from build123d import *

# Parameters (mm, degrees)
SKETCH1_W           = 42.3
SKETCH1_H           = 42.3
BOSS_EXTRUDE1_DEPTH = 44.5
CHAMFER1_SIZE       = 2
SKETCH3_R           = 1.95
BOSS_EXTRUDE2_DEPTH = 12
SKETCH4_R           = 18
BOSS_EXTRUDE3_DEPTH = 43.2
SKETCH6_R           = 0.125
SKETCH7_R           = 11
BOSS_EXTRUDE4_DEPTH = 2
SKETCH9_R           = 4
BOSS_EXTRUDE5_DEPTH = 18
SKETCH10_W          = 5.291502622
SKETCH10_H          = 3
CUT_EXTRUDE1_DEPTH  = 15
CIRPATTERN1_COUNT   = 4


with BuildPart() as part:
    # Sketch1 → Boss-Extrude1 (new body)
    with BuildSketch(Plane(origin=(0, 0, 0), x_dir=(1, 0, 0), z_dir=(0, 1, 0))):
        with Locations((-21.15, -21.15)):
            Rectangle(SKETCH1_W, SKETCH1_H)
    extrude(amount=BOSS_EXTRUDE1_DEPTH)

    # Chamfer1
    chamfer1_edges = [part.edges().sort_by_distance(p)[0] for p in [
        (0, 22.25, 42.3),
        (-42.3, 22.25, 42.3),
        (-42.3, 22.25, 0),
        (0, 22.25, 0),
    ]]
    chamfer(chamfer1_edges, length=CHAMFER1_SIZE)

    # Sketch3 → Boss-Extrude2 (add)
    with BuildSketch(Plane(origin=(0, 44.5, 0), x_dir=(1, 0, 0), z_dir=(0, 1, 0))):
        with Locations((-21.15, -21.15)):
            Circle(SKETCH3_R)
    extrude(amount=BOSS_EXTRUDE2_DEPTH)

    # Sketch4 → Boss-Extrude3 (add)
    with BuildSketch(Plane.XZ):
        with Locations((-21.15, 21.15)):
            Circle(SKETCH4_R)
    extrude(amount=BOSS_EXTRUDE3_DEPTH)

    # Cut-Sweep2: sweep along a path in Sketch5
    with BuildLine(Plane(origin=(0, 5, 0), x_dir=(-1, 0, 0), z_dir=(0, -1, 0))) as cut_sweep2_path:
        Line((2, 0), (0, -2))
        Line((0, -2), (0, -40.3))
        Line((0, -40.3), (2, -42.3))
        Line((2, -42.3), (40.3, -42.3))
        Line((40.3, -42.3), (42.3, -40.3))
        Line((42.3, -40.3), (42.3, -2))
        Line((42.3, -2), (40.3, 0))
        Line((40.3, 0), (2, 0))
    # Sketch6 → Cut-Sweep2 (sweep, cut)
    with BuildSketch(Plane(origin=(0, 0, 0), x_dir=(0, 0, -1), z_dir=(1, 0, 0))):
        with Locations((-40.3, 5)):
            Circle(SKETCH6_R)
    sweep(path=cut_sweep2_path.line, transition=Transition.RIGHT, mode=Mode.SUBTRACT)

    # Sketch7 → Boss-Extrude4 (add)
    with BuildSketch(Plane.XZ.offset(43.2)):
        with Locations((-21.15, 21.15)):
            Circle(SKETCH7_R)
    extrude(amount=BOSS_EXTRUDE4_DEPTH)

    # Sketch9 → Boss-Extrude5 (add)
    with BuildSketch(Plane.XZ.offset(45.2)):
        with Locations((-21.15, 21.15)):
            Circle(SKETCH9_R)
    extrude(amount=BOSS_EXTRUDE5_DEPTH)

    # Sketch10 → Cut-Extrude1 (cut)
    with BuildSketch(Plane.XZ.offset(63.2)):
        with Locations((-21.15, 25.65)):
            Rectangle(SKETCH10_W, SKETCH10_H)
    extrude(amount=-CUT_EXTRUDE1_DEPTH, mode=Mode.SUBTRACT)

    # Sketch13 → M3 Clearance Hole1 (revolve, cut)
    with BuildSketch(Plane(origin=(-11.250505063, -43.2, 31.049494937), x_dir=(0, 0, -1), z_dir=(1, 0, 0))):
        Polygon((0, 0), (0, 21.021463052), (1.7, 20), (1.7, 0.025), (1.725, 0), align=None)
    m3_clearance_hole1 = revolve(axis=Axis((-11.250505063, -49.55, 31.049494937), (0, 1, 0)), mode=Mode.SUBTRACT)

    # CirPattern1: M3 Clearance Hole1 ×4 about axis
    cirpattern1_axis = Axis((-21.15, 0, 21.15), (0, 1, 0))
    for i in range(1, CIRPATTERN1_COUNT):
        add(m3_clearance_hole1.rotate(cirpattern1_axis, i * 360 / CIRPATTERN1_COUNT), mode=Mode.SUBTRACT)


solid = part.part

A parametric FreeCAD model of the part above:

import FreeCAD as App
import Part
import Sketcher
from FreeCAD import Vector
Q = App.Units.Quantity


def edges_at(feature, points):
    """Names of the edges that pass closest to the given points."""
    edges = feature.Shape.Edges
    near = lambda p: min(range(len(edges)), key=lambda i: edges[i].distToShape(Part.Vertex(*p))[0])
    return sorted({f"Edge{near(p) + 1}" for p in points})


def add_polygon(sketch, points):
    """Adds a closed chain of lines whose ends are joined by coincident constraints."""
    first, n = sketch.GeometryCount, len(points)
    for a, b in zip(points, points[1:] + points[:1]):
        sketch.addGeometry(Part.LineSegment(App.Vector(*a, 0), App.Vector(*b, 0)), False)
    for i in range(n):
        sketch.addConstraint(Sketcher.Constraint("Coincident", first + i, 2, first + (i + 1) % n, 1))

doc = App.newDocument("Part")
body = doc.addObject("PartDesign::Body", "Body")

# Sketch on XZ plane
sketch1 = doc.addObject("Sketcher::SketchObject", "Sketch")
body.addObject(sketch1)
sketch1.AttachmentSupport = (doc.XZ_Plane, [""])
sketch1.MapMode = "FlatFace"
add_polygon(sketch1, [(-42, 0), (-42, 42), (0, 42), (0, 0)])  # lines 0-3
sketch1.addConstraint([
    Sketcher.Constraint("Vertical", 0),
    Sketcher.Constraint("Horizontal", 1),
    Sketcher.Constraint("Vertical", 2),
    Sketcher.Constraint("Horizontal", 3),
    Sketcher.Constraint("Coincident", 2, 2, -1, 1),
    Sketcher.Constraint("Equal", 3, 0),
    Sketcher.Constraint("DistanceX", 1, 1, 1, 2, 42.3),
])
pad1 = doc.addObject("PartDesign::Pad", "Pad")
body.addObject(pad1)
pad1.Profile = sketch1
pad1.Length = 44.5
pad1.Reversed = True
doc.recompute()

chamfer = doc.addObject("PartDesign::Chamfer", "Chamfer")
body.addObject(chamfer)
chamfer.Base = (pad1, edges_at(pad1, [
    (0, 22.25, 42.3),
    (-42.3, 22.25, 42.3),
    (-42.3, 22.25, 0),
    (0, 22.25, 0),
]))
chamfer.Size = 2

# Sketch on XZ plane
sketch2 = doc.addObject("Sketcher::SketchObject", "Sketch001")
body.addObject(sketch2)
sketch2.AttachmentSupport = (doc.XZ_Plane, [""])
sketch2.MapMode = "FlatFace"
sketch2.AttachmentOffset = App.Placement(Vector(0, 0, -44.5), App.Rotation())
sketch2.addGeometry(Part.Circle(Vector(-21.1, 21.1, 0), Vector(0, 0, 1), 1.9), False)
sketch2.addConstraint([
    Sketcher.Constraint("Diameter", 0, 3.9),
    Sketcher.Constraint("DistanceX", 0, 3, -1, 1, 21.15),
    Sketcher.Constraint("DistanceY", -1, 1, 0, 3, 21.15),
])
pad2 = doc.addObject("PartDesign::Pad", "Pad001")
body.addObject(pad2)
pad2.Profile = sketch2
pad2.Length = 12
pad2.Reversed = True

# Sketch on XZ plane
sketch3 = doc.addObject("Sketcher::SketchObject", "Sketch002")
body.addObject(sketch3)
sketch3.AttachmentSupport = (doc.XZ_Plane, [""])
sketch3.MapMode = "FlatFace"
sketch3.addGeometry(Part.Circle(Vector(-21, 21, 0), Vector(0, 0, 1), 18), False)
sketch3.addConstraint([
    Sketcher.Constraint("Diameter", 0, 36.0),
    Sketcher.Constraint("DistanceX", 0, 3, -1, 1, 21.15),
    Sketcher.Constraint("DistanceY", -1, 1, 0, 3, 21.15),
])
pad3 = doc.addObject("PartDesign::Pad", "Pad002")
body.addObject(pad3)
pad3.Profile = sketch3
pad3.Length = 43.2

# Sketch on YZ plane
sketch4 = doc.addObject("Sketcher::SketchObject", "Sketch003")
body.addObject(sketch4)
sketch4.AttachmentSupport = (doc.YZ_Plane, [""])
sketch4.MapMode = "FlatFace"
sketch4.addGeometry(Part.Circle(Vector(5, 40.3, 0), Vector(0, 0, 1), 0.12), False)
sketch4.addConstraint([
    Sketcher.Constraint("Diameter", 0, 0.25),
    Sketcher.Constraint("DistanceX", -1, 1, 0, 3, 5.0),
    Sketcher.Constraint("DistanceY", -1, 1, 0, 3, 40.3),
])

# Sketch on XZ plane
sketch5 = doc.addObject("Sketcher::SketchObject", "Sketch004")
body.addObject(sketch5)
sketch5.AttachmentSupport = (doc.XZ_Plane, [""])
sketch5.MapMode = "FlatFace"
sketch5.AttachmentOffset = App.Placement(Vector(0, 0, -5), App.Rotation())
add_polygon(sketch5, [(-2, 0), (0, 2), (0, 40.3), (-2, 42.3), (-40.3, 42.3), (-42.3, 40.3), (-42.3, 2), (-40.3, 0)])  # lines 0-7
sketch5.addConstraint([
    Sketcher.Constraint("Vertical", 1),
    Sketcher.Constraint("Horizontal", 3),
    Sketcher.Constraint("Vertical", 5),
    Sketcher.Constraint("Horizontal", 7),
    Sketcher.Constraint("PointOnObject", 0, 2, -2),
    Sketcher.Constraint("PointOnObject", 6, 2, -1),
    Sketcher.Constraint("Perpendicular", 0, 2),
    Sketcher.Constraint("Perpendicular", 2, 4),
    Sketcher.Constraint("Perpendicular", 4, 6),
    Sketcher.Constraint("Horizontal", 1, 2, 4, 2),
    Sketcher.Constraint("Horizontal", 0, 2, 5, 2),
    Sketcher.Constraint("Vertical", 3, 2, 6, 2),
    Sketcher.Constraint("Vertical", 2, 2, 7, 2),
    Sketcher.Constraint("Equal", 7, 1),
    Sketcher.Constraint("DistanceX", 3, 2, 3, 1, 38.3),
    Sketcher.Constraint("DistanceY", -1, 1, 0, 2, 2.0),
])
doc.recompute()

subtractivepipe = doc.addObject("PartDesign::SubtractivePipe", "SubtractivePipe")
body.addObject(subtractivepipe)
subtractivepipe.Profile = sketch4
subtractivepipe.Spine = (sketch5, ["Edge1", "Edge2", "Edge3", "Edge4", "Edge5", "Edge6", "Edge7", "Edge8"])
subtractivepipe.Transition = "Right corner"

# Sketch on XZ plane
sketch6 = doc.addObject("Sketcher::SketchObject", "Sketch005")
body.addObject(sketch6)
sketch6.AttachmentSupport = (doc.XZ_Plane, [""])
sketch6.MapMode = "FlatFace"
sketch6.AttachmentOffset = App.Placement(Vector(0, 0, 43.2), App.Rotation())
sketch6.addGeometry(Part.Circle(Vector(-21, 21, 0), Vector(0, 0, 1), 11), False)
sketch6.addConstraint([
    Sketcher.Constraint("Diameter", 0, 22.0),
    Sketcher.Constraint("DistanceX", 0, 3, -1, 1, 21.15),
    Sketcher.Constraint("DistanceY", -1, 1, 0, 3, 21.15),
])
pad4 = doc.addObject("PartDesign::Pad", "Pad003")
body.addObject(pad4)
pad4.Profile = sketch6
pad4.Length = 2

# Sketch on XZ plane
sketch7 = doc.addObject("Sketcher::SketchObject", "Sketch006")
body.addObject(sketch7)
sketch7.AttachmentSupport = (doc.XZ_Plane, [""])
sketch7.MapMode = "FlatFace"
sketch7.AttachmentOffset = App.Placement(Vector(0, 0, 45.2), App.Rotation())
sketch7.addGeometry(Part.Circle(Vector(-21.1, 21.1, 0), Vector(0, 0, 1), 4), False)
sketch7.addConstraint([
    Sketcher.Constraint("Diameter", 0, 8.0),
    Sketcher.Constraint("DistanceX", 0, 3, -1, 1, 21.15),
    Sketcher.Constraint("DistanceY", -1, 1, 0, 3, 21.15),
])
pad5 = doc.addObject("PartDesign::Pad", "Pad004")
body.addObject(pad5)
pad5.Profile = sketch7
pad5.Length = 18

# Sketch on XZ plane
sketch8 = doc.addObject("Sketcher::SketchObject", "Sketch007")
body.addObject(sketch8)
sketch8.AttachmentSupport = (doc.XZ_Plane, [""])
sketch8.MapMode = "FlatFace"
sketch8.AttachmentOffset = App.Placement(Vector(0, 0, 63.2), App.Rotation())
add_polygon(sketch8, [(-23.8, 27.1), (-23.8, 24.1), (-18.5, 24.1), (-18.5, 27.1)])  # lines 0-3
sketch8.addConstraint([
    Sketcher.Constraint("Vertical", 0),
    Sketcher.Constraint("Horizontal", 1),
    Sketcher.Constraint("Vertical", 2),
    Sketcher.Constraint("Horizontal", 3),
    Sketcher.Constraint("DistanceY", 0, 2, 0, 1, 3.0),
    Sketcher.Constraint("DistanceY", -1, 1, 0, 2, 24.15),
    Sketcher.Constraint("DistanceX", 1, 1, 1, 2, 5.291503),
    Sketcher.Constraint("DistanceX", 0, 2, -1, 1, 23.795751),
])
pocket1 = doc.addObject("PartDesign::Pocket", "Pocket")
body.addObject(pocket1)
pocket1.Profile = sketch8
pocket1.Length = 15

# Sketch on YZ plane
sketch9 = doc.addObject("Sketcher::SketchObject", "Sketch008")
body.addObject(sketch9)
sketch9.AttachmentSupport = (doc.YZ_Plane, [""])
sketch9.MapMode = "FlatFace"
sketch9.AttachmentOffset = App.Placement(Vector(0, 0, -11.250505), App.Rotation())
add_polygon(sketch9, [(-22.179, 31.049), (-43.2, 31.049), (-43.2, 29.324), (-43.175, 29.349), (-23.2, 29.349)])  # lines 0-4
sketch9.addGeometry(Part.LineSegment(Vector(-43.2, 31.049, 0), Vector(-22.179, 31.049, 0)), True)  # axis
sketch9.addConstraint([
    Sketcher.Constraint("Horizontal", 0),
    Sketcher.Constraint("Vertical", 1),
    Sketcher.Constraint("Horizontal", 3),
    Sketcher.Constraint("Horizontal", 5),
    Sketcher.Constraint("Coincident", 5, 1, 0, 2),
    Sketcher.Constraint("Equal", 0, 5),
    Sketcher.Constraint("Angle", 2, Q("45 deg")),
    Sketcher.Constraint("Angle", 4, Q("59 deg")),
    Sketcher.Constraint("DistanceX", 1, 2, 3, 2, 20.0),
    Sketcher.Constraint("DistanceX", 0, 2, -1, 1, 43.2),
    Sketcher.Constraint("DistanceY", 2, 2, 0, 2, 1.7),
    Sketcher.Constraint("DistanceX", 3, 1, 3, 2, 19.975),
    Sketcher.Constraint("DistanceY", -1, 1, 0, 2, 31.049495),
])
groove = doc.addObject("PartDesign::Groove", "Groove")
body.addObject(groove)
groove.Profile = sketch9
groove.ReferenceAxis = (sketch9, ["Axis0"])
groove.Angle = 360
doc.recompute()

datumline = doc.addObject("PartDesign::Line", "DatumLine")
body.addObject(datumline)
datumline.Placement = App.Placement(Vector(-21.15, 0, 21.15), App.Rotation(Vector(0, 0, 1), Vector(0, 1, 0)))
polarpattern = doc.addObject("PartDesign::PolarPattern", "PolarPattern")
body.addObject(polarpattern)
polarpattern.Originals = [groove]
polarpattern.Axis = (datumline, [""])
polarpattern.Angle = 360
polarpattern.Occurrences = 4
body.Tip = polarpattern

doc.recompute()
